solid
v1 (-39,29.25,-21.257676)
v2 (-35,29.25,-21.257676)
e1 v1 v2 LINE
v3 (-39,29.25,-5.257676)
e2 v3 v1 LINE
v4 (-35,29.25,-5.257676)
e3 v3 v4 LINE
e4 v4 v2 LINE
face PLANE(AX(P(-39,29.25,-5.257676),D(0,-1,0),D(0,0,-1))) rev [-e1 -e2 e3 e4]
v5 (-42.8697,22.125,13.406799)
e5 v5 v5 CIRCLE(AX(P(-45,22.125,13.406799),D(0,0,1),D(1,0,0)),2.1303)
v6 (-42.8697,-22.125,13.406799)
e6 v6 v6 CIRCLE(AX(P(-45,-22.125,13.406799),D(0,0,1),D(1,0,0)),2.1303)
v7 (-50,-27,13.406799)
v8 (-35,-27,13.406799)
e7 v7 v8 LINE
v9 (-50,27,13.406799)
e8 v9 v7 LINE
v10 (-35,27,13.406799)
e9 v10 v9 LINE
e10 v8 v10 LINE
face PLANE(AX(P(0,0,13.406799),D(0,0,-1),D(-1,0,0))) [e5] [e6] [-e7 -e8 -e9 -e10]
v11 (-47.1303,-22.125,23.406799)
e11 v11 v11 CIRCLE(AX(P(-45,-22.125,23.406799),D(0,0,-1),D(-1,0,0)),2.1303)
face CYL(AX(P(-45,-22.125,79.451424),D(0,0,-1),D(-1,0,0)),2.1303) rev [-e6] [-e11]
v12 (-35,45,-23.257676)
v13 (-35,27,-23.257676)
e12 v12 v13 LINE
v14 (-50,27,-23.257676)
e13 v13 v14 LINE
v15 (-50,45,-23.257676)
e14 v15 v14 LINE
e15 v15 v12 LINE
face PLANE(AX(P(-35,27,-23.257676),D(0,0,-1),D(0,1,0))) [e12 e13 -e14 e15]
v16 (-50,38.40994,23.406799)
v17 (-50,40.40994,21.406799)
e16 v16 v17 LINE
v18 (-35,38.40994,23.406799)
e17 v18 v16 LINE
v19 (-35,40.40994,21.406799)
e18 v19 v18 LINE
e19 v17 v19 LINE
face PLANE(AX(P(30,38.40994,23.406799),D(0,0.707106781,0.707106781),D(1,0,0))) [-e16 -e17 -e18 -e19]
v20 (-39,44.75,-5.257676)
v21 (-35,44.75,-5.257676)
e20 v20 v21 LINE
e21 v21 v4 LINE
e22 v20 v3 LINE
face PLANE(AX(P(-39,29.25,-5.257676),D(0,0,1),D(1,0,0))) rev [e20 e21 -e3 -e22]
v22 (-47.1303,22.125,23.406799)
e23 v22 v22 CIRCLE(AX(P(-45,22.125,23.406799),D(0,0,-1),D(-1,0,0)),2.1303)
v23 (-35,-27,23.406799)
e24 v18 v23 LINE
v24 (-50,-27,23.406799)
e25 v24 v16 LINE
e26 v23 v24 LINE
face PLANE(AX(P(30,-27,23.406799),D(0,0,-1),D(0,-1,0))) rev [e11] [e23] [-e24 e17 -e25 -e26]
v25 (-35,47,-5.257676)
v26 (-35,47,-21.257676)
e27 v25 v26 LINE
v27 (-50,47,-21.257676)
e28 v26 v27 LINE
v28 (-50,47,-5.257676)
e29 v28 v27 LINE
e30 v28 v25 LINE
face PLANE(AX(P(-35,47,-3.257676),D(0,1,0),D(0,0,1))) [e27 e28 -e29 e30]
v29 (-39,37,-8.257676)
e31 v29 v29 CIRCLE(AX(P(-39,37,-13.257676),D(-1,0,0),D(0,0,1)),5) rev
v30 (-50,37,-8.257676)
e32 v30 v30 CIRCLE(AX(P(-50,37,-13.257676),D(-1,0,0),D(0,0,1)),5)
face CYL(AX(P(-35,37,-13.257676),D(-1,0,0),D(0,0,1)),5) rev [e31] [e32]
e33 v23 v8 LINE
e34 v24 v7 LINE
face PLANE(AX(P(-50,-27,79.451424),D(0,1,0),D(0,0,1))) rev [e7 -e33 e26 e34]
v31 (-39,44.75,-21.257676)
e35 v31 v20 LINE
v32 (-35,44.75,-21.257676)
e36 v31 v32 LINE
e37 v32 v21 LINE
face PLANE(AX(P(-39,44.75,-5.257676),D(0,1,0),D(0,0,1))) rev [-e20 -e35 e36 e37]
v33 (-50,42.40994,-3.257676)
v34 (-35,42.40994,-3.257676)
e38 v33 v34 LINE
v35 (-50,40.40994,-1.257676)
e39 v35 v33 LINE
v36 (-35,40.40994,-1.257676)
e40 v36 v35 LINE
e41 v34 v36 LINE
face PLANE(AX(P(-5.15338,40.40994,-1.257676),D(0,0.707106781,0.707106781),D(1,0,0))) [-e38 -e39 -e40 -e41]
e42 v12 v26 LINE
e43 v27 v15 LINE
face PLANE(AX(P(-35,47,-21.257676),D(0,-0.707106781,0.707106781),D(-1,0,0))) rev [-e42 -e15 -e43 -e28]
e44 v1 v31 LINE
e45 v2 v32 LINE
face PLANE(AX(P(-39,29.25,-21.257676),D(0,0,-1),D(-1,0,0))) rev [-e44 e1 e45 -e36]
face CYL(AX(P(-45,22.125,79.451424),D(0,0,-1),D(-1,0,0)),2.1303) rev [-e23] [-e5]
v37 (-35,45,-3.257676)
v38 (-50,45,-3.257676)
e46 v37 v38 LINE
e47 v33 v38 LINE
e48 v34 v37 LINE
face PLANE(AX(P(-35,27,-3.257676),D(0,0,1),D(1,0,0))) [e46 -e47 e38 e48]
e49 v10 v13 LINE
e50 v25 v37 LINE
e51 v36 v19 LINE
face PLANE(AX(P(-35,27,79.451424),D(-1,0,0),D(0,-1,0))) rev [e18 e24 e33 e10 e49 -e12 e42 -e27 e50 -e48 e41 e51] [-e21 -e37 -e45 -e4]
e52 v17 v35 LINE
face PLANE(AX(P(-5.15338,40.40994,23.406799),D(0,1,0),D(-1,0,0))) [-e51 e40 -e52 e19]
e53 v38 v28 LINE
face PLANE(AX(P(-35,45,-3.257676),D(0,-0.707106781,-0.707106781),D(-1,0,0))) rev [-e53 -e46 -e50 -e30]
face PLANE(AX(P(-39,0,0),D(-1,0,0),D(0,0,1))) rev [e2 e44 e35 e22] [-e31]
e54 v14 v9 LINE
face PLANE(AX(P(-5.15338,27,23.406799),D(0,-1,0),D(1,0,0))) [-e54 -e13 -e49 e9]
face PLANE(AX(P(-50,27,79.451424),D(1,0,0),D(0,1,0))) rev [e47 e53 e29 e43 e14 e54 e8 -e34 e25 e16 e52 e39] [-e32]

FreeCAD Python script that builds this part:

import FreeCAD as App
import Part
import Sketcher


def edges_at(feature, points):
    """Names of the edges that pass closest to the given points."""
    edges = feature.Shape.Edges
    near = lambda p: min(range(len(edges)), key=lambda i: edges[i].distToShape(Part.Vertex(*p))[0])
    return sorted({f"Edge{near(p) + 1}" for p in points})


def add_polygon(sketch, points):
    """Adds a closed chain of lines whose ends are joined by coincident constraints."""
    first, n = sketch.GeometryCount, len(points)
    for a, b in zip(points, points[1:] + points[:1]):
        sketch.addGeometry(Part.LineSegment(App.Vector(*a, 0), App.Vector(*b, 0)), False)
    for i in range(n):
        sketch.addConstraint(Sketcher.Constraint("Coincident", first + i, 2, first + (i + 1) % n, 1))

doc = App.newDocument("Part")
body = doc.addObject("PartDesign::Body", "Body")

# Sketch on XY plane
sketch1 = body.newObject("Sketcher::SketchObject", "Sketch")
sketch1.AttachmentSupport = (doc.getObject("XY_Plane"), [""])
sketch1.MapMode = "FlatFace"
sketch1.AttachmentOffset = App.Placement(App.Vector(0, 0, 13.406799), App.Rotation())
add_polygon(sketch1, [(-50, 27), (-50, -27), (-35, -27), (-35, 27)])  # lines 0-3
sketch1.addGeometry(Part.Circle(App.Vector(-45, -22.1, 0), App.Vector(0, 0, 1), 2.1), False)  # 4
sketch1.addGeometry(Part.Circle(App.Vector(-45, 22.1, 0), App.Vector(0, 0, 1), 2.1), False)  # 5
sketch1.addConstraint(Sketcher.Constraint("Vertical", 0))
sketch1.addConstraint(Sketcher.Constraint("Horizontal", 1))
sketch1.addConstraint(Sketcher.Constraint("Vertical", 2))
sketch1.addConstraint(Sketcher.Constraint("Horizontal", 3))
sketch1.addConstraint(Sketcher.Constraint("Equal", 4, 5))
sketch1.addConstraint(Sketcher.Constraint("Symmetric", 4, 3, 5, 3, -1))
sketch1.addConstraint(Sketcher.Constraint("DistanceX", 1, 1, 1, 2, 15.0))
sketch1.addConstraint(Sketcher.Constraint("DistanceY", 0, 2, 0, 1, 54.0))
sketch1.addConstraint(Sketcher.Constraint("DistanceX", 4, 3, -1, 1, 45.0))
sketch1.addConstraint(Sketcher.Constraint("DistanceX", 0, 2, -1, 1, 50.0))
sketch1.addConstraint(Sketcher.Constraint("DistanceY", 0, 2, -1, 1, 27.0))
sketch1.addConstraint(Sketcher.Constraint("Diameter", 4, 4.2606))
sketch1.addConstraint(Sketcher.Constraint("DistanceY", 4, 3, 5, 3, 44.25))
pad1 = body.newObject("PartDesign::Pad", "Pad")
pad1.Profile = sketch1
pad1.Length = 10
body2 = doc.addObject("PartDesign::Body", "Body001")

# Sketch on YZ plane
sketch2 = body2.newObject("Sketcher::SketchObject", "Sketch001")
sketch2.AttachmentSupport = (doc.getObject("YZ_Plane001"), [""])
sketch2.MapMode = "FlatFace"
sketch2.AttachmentOffset = App.Placement(App.Vector(0, 0, -50), App.Rotation())
add_polygon(sketch2, [(47, -23), (27, -23), (27, -3), (47, -3)])  # lines 0-3
sketch2.addGeometry(Part.Circle(App.Vector(37, -13, 0), App.Vector(0, 0, 1), 5), False)  # 4
sketch2.addConstraint(Sketcher.Constraint("Horizontal", 0))
sketch2.addConstraint(Sketcher.Constraint("Vertical", 1))
sketch2.addConstraint(Sketcher.Constraint("Horizontal", 2))
sketch2.addConstraint(Sketcher.Constraint("Vertical", 3))
sketch2.addConstraint(Sketcher.Constraint("Equal", 2, 1))
sketch2.addConstraint(Sketcher.Constraint("Diameter", 4, 10.0))
sketch2.addConstraint(Sketcher.Constraint("DistanceX", 0, 2, 0, 1, 20.0))
sketch2.addConstraint(Sketcher.Constraint("DistanceX", -1, 1, 4, 3, 37.0))
sketch2.addConstraint(Sketcher.Constraint("DistanceX", -1, 1, 0, 2, 27.0))
sketch2.addConstraint(Sketcher.Constraint("DistanceY", 0, 2, 4, 3, 10.0))
sketch2.addConstraint(Sketcher.Constraint("DistanceY", 4, 3, -1, 1, 13.257676))
pad2 = body2.newObject("PartDesign::Pad", "Pad001")
pad2.Profile = sketch2
pad2.Length = 15
body.AllowCompound = True
doc.recompute()

boolean = body.newObject("PartDesign::Boolean", "Boolean")
boolean.Type = "Fuse"
boolean.addObjects([body2])

# Sketch on YZ plane
sketch3 = body.newObject("Sketcher::SketchObject", "Sketch002")
sketch3.AttachmentSupport = (doc.getObject("YZ_Plane"), [""])
sketch3.MapMode = "FlatFace"
sketch3.AttachmentOffset = App.Placement(App.Vector(0, 0, -50), App.Rotation())
add_polygon(sketch3, [(40, -3), (27, -3), (27, 23), (40, 23)])  # lines 0-3
sketch3.addConstraint(Sketcher.Constraint("Horizontal", 0))
sketch3.addConstraint(Sketcher.Constraint("Vertical", 1))
sketch3.addConstraint(Sketcher.Constraint("Horizontal", 2))
sketch3.addConstraint(Sketcher.Constraint("Vertical", 3))
sketch3.addConstraint(Sketcher.Constraint("DistanceX", -1, 1, 0, 2, 27.0))
sketch3.addConstraint(Sketcher.Constraint("DistanceX", 0, 2, 0, 1, 13.40994))
sketch3.addConstraint(Sketcher.Constraint("DistanceY", -1, 1, 1, 2, 23.406799))
sketch3.addConstraint(Sketcher.Constraint("DistanceY", 1, 1, 1, 2, 26.664475))
pad3 = body.newObject("PartDesign::Pad", "Pad002")
pad3.Profile = sketch3
pad3.Length = 15

# Sketch on YZ plane
sketch4 = body.newObject("Sketcher::SketchObject", "Sketch003")
sketch4.AttachmentSupport = (doc.getObject("YZ_Plane"), [""])
sketch4.MapMode = "FlatFace"
sketch4.AttachmentOffset = App.Placement(App.Vector(0, 0, -35), App.Rotation())
add_polygon(sketch4, [(45, -5), (29, -5), (29, -21), (45, -21)])  # lines 0-3
sketch4.addConstraint(Sketcher.Constraint("Horizontal", 0))
sketch4.addConstraint(Sketcher.Constraint("Vertical", 1))
sketch4.addConstraint(Sketcher.Constraint("Horizontal", 2))
sketch4.addConstraint(Sketcher.Constraint("Vertical", 3))
sketch4.addConstraint(Sketcher.Constraint("DistanceY", 1, 2, 1, 1, 16.0))
sketch4.addConstraint(Sketcher.Constraint("DistanceX", 0, 2, 0, 1, 15.5))
sketch4.addConstraint(Sketcher.Constraint("DistanceX", -1, 1, 0, 2, 29.25))
sketch4.addConstraint(Sketcher.Constraint("DistanceY", 0, 2, -1, 1, 5.257676))
pocket1 = body.newObject("PartDesign::Pocket", "Pocket")
pocket1.Profile = sketch4
pocket1.Length = 4
doc.recompute()

chamfer = body.newObject("PartDesign::Chamfer", "Chamfer")
chamfer.Base = (pocket1, edges_at(pocket1, [(-42.5, 47, -3.258), (-42.5, 47, -23.258)]))
chamfer.Size = 2
doc.recompute()

chamfer2 = body.newObject("PartDesign::Chamfer", "Chamfer001")
chamfer2.Base = (chamfer, edges_at(chamfer, [(-42.5, 40.41, -3.258), (-42.5, 40.41, 23.407)]))
chamfer2.Size = 2

doc.recompute()
